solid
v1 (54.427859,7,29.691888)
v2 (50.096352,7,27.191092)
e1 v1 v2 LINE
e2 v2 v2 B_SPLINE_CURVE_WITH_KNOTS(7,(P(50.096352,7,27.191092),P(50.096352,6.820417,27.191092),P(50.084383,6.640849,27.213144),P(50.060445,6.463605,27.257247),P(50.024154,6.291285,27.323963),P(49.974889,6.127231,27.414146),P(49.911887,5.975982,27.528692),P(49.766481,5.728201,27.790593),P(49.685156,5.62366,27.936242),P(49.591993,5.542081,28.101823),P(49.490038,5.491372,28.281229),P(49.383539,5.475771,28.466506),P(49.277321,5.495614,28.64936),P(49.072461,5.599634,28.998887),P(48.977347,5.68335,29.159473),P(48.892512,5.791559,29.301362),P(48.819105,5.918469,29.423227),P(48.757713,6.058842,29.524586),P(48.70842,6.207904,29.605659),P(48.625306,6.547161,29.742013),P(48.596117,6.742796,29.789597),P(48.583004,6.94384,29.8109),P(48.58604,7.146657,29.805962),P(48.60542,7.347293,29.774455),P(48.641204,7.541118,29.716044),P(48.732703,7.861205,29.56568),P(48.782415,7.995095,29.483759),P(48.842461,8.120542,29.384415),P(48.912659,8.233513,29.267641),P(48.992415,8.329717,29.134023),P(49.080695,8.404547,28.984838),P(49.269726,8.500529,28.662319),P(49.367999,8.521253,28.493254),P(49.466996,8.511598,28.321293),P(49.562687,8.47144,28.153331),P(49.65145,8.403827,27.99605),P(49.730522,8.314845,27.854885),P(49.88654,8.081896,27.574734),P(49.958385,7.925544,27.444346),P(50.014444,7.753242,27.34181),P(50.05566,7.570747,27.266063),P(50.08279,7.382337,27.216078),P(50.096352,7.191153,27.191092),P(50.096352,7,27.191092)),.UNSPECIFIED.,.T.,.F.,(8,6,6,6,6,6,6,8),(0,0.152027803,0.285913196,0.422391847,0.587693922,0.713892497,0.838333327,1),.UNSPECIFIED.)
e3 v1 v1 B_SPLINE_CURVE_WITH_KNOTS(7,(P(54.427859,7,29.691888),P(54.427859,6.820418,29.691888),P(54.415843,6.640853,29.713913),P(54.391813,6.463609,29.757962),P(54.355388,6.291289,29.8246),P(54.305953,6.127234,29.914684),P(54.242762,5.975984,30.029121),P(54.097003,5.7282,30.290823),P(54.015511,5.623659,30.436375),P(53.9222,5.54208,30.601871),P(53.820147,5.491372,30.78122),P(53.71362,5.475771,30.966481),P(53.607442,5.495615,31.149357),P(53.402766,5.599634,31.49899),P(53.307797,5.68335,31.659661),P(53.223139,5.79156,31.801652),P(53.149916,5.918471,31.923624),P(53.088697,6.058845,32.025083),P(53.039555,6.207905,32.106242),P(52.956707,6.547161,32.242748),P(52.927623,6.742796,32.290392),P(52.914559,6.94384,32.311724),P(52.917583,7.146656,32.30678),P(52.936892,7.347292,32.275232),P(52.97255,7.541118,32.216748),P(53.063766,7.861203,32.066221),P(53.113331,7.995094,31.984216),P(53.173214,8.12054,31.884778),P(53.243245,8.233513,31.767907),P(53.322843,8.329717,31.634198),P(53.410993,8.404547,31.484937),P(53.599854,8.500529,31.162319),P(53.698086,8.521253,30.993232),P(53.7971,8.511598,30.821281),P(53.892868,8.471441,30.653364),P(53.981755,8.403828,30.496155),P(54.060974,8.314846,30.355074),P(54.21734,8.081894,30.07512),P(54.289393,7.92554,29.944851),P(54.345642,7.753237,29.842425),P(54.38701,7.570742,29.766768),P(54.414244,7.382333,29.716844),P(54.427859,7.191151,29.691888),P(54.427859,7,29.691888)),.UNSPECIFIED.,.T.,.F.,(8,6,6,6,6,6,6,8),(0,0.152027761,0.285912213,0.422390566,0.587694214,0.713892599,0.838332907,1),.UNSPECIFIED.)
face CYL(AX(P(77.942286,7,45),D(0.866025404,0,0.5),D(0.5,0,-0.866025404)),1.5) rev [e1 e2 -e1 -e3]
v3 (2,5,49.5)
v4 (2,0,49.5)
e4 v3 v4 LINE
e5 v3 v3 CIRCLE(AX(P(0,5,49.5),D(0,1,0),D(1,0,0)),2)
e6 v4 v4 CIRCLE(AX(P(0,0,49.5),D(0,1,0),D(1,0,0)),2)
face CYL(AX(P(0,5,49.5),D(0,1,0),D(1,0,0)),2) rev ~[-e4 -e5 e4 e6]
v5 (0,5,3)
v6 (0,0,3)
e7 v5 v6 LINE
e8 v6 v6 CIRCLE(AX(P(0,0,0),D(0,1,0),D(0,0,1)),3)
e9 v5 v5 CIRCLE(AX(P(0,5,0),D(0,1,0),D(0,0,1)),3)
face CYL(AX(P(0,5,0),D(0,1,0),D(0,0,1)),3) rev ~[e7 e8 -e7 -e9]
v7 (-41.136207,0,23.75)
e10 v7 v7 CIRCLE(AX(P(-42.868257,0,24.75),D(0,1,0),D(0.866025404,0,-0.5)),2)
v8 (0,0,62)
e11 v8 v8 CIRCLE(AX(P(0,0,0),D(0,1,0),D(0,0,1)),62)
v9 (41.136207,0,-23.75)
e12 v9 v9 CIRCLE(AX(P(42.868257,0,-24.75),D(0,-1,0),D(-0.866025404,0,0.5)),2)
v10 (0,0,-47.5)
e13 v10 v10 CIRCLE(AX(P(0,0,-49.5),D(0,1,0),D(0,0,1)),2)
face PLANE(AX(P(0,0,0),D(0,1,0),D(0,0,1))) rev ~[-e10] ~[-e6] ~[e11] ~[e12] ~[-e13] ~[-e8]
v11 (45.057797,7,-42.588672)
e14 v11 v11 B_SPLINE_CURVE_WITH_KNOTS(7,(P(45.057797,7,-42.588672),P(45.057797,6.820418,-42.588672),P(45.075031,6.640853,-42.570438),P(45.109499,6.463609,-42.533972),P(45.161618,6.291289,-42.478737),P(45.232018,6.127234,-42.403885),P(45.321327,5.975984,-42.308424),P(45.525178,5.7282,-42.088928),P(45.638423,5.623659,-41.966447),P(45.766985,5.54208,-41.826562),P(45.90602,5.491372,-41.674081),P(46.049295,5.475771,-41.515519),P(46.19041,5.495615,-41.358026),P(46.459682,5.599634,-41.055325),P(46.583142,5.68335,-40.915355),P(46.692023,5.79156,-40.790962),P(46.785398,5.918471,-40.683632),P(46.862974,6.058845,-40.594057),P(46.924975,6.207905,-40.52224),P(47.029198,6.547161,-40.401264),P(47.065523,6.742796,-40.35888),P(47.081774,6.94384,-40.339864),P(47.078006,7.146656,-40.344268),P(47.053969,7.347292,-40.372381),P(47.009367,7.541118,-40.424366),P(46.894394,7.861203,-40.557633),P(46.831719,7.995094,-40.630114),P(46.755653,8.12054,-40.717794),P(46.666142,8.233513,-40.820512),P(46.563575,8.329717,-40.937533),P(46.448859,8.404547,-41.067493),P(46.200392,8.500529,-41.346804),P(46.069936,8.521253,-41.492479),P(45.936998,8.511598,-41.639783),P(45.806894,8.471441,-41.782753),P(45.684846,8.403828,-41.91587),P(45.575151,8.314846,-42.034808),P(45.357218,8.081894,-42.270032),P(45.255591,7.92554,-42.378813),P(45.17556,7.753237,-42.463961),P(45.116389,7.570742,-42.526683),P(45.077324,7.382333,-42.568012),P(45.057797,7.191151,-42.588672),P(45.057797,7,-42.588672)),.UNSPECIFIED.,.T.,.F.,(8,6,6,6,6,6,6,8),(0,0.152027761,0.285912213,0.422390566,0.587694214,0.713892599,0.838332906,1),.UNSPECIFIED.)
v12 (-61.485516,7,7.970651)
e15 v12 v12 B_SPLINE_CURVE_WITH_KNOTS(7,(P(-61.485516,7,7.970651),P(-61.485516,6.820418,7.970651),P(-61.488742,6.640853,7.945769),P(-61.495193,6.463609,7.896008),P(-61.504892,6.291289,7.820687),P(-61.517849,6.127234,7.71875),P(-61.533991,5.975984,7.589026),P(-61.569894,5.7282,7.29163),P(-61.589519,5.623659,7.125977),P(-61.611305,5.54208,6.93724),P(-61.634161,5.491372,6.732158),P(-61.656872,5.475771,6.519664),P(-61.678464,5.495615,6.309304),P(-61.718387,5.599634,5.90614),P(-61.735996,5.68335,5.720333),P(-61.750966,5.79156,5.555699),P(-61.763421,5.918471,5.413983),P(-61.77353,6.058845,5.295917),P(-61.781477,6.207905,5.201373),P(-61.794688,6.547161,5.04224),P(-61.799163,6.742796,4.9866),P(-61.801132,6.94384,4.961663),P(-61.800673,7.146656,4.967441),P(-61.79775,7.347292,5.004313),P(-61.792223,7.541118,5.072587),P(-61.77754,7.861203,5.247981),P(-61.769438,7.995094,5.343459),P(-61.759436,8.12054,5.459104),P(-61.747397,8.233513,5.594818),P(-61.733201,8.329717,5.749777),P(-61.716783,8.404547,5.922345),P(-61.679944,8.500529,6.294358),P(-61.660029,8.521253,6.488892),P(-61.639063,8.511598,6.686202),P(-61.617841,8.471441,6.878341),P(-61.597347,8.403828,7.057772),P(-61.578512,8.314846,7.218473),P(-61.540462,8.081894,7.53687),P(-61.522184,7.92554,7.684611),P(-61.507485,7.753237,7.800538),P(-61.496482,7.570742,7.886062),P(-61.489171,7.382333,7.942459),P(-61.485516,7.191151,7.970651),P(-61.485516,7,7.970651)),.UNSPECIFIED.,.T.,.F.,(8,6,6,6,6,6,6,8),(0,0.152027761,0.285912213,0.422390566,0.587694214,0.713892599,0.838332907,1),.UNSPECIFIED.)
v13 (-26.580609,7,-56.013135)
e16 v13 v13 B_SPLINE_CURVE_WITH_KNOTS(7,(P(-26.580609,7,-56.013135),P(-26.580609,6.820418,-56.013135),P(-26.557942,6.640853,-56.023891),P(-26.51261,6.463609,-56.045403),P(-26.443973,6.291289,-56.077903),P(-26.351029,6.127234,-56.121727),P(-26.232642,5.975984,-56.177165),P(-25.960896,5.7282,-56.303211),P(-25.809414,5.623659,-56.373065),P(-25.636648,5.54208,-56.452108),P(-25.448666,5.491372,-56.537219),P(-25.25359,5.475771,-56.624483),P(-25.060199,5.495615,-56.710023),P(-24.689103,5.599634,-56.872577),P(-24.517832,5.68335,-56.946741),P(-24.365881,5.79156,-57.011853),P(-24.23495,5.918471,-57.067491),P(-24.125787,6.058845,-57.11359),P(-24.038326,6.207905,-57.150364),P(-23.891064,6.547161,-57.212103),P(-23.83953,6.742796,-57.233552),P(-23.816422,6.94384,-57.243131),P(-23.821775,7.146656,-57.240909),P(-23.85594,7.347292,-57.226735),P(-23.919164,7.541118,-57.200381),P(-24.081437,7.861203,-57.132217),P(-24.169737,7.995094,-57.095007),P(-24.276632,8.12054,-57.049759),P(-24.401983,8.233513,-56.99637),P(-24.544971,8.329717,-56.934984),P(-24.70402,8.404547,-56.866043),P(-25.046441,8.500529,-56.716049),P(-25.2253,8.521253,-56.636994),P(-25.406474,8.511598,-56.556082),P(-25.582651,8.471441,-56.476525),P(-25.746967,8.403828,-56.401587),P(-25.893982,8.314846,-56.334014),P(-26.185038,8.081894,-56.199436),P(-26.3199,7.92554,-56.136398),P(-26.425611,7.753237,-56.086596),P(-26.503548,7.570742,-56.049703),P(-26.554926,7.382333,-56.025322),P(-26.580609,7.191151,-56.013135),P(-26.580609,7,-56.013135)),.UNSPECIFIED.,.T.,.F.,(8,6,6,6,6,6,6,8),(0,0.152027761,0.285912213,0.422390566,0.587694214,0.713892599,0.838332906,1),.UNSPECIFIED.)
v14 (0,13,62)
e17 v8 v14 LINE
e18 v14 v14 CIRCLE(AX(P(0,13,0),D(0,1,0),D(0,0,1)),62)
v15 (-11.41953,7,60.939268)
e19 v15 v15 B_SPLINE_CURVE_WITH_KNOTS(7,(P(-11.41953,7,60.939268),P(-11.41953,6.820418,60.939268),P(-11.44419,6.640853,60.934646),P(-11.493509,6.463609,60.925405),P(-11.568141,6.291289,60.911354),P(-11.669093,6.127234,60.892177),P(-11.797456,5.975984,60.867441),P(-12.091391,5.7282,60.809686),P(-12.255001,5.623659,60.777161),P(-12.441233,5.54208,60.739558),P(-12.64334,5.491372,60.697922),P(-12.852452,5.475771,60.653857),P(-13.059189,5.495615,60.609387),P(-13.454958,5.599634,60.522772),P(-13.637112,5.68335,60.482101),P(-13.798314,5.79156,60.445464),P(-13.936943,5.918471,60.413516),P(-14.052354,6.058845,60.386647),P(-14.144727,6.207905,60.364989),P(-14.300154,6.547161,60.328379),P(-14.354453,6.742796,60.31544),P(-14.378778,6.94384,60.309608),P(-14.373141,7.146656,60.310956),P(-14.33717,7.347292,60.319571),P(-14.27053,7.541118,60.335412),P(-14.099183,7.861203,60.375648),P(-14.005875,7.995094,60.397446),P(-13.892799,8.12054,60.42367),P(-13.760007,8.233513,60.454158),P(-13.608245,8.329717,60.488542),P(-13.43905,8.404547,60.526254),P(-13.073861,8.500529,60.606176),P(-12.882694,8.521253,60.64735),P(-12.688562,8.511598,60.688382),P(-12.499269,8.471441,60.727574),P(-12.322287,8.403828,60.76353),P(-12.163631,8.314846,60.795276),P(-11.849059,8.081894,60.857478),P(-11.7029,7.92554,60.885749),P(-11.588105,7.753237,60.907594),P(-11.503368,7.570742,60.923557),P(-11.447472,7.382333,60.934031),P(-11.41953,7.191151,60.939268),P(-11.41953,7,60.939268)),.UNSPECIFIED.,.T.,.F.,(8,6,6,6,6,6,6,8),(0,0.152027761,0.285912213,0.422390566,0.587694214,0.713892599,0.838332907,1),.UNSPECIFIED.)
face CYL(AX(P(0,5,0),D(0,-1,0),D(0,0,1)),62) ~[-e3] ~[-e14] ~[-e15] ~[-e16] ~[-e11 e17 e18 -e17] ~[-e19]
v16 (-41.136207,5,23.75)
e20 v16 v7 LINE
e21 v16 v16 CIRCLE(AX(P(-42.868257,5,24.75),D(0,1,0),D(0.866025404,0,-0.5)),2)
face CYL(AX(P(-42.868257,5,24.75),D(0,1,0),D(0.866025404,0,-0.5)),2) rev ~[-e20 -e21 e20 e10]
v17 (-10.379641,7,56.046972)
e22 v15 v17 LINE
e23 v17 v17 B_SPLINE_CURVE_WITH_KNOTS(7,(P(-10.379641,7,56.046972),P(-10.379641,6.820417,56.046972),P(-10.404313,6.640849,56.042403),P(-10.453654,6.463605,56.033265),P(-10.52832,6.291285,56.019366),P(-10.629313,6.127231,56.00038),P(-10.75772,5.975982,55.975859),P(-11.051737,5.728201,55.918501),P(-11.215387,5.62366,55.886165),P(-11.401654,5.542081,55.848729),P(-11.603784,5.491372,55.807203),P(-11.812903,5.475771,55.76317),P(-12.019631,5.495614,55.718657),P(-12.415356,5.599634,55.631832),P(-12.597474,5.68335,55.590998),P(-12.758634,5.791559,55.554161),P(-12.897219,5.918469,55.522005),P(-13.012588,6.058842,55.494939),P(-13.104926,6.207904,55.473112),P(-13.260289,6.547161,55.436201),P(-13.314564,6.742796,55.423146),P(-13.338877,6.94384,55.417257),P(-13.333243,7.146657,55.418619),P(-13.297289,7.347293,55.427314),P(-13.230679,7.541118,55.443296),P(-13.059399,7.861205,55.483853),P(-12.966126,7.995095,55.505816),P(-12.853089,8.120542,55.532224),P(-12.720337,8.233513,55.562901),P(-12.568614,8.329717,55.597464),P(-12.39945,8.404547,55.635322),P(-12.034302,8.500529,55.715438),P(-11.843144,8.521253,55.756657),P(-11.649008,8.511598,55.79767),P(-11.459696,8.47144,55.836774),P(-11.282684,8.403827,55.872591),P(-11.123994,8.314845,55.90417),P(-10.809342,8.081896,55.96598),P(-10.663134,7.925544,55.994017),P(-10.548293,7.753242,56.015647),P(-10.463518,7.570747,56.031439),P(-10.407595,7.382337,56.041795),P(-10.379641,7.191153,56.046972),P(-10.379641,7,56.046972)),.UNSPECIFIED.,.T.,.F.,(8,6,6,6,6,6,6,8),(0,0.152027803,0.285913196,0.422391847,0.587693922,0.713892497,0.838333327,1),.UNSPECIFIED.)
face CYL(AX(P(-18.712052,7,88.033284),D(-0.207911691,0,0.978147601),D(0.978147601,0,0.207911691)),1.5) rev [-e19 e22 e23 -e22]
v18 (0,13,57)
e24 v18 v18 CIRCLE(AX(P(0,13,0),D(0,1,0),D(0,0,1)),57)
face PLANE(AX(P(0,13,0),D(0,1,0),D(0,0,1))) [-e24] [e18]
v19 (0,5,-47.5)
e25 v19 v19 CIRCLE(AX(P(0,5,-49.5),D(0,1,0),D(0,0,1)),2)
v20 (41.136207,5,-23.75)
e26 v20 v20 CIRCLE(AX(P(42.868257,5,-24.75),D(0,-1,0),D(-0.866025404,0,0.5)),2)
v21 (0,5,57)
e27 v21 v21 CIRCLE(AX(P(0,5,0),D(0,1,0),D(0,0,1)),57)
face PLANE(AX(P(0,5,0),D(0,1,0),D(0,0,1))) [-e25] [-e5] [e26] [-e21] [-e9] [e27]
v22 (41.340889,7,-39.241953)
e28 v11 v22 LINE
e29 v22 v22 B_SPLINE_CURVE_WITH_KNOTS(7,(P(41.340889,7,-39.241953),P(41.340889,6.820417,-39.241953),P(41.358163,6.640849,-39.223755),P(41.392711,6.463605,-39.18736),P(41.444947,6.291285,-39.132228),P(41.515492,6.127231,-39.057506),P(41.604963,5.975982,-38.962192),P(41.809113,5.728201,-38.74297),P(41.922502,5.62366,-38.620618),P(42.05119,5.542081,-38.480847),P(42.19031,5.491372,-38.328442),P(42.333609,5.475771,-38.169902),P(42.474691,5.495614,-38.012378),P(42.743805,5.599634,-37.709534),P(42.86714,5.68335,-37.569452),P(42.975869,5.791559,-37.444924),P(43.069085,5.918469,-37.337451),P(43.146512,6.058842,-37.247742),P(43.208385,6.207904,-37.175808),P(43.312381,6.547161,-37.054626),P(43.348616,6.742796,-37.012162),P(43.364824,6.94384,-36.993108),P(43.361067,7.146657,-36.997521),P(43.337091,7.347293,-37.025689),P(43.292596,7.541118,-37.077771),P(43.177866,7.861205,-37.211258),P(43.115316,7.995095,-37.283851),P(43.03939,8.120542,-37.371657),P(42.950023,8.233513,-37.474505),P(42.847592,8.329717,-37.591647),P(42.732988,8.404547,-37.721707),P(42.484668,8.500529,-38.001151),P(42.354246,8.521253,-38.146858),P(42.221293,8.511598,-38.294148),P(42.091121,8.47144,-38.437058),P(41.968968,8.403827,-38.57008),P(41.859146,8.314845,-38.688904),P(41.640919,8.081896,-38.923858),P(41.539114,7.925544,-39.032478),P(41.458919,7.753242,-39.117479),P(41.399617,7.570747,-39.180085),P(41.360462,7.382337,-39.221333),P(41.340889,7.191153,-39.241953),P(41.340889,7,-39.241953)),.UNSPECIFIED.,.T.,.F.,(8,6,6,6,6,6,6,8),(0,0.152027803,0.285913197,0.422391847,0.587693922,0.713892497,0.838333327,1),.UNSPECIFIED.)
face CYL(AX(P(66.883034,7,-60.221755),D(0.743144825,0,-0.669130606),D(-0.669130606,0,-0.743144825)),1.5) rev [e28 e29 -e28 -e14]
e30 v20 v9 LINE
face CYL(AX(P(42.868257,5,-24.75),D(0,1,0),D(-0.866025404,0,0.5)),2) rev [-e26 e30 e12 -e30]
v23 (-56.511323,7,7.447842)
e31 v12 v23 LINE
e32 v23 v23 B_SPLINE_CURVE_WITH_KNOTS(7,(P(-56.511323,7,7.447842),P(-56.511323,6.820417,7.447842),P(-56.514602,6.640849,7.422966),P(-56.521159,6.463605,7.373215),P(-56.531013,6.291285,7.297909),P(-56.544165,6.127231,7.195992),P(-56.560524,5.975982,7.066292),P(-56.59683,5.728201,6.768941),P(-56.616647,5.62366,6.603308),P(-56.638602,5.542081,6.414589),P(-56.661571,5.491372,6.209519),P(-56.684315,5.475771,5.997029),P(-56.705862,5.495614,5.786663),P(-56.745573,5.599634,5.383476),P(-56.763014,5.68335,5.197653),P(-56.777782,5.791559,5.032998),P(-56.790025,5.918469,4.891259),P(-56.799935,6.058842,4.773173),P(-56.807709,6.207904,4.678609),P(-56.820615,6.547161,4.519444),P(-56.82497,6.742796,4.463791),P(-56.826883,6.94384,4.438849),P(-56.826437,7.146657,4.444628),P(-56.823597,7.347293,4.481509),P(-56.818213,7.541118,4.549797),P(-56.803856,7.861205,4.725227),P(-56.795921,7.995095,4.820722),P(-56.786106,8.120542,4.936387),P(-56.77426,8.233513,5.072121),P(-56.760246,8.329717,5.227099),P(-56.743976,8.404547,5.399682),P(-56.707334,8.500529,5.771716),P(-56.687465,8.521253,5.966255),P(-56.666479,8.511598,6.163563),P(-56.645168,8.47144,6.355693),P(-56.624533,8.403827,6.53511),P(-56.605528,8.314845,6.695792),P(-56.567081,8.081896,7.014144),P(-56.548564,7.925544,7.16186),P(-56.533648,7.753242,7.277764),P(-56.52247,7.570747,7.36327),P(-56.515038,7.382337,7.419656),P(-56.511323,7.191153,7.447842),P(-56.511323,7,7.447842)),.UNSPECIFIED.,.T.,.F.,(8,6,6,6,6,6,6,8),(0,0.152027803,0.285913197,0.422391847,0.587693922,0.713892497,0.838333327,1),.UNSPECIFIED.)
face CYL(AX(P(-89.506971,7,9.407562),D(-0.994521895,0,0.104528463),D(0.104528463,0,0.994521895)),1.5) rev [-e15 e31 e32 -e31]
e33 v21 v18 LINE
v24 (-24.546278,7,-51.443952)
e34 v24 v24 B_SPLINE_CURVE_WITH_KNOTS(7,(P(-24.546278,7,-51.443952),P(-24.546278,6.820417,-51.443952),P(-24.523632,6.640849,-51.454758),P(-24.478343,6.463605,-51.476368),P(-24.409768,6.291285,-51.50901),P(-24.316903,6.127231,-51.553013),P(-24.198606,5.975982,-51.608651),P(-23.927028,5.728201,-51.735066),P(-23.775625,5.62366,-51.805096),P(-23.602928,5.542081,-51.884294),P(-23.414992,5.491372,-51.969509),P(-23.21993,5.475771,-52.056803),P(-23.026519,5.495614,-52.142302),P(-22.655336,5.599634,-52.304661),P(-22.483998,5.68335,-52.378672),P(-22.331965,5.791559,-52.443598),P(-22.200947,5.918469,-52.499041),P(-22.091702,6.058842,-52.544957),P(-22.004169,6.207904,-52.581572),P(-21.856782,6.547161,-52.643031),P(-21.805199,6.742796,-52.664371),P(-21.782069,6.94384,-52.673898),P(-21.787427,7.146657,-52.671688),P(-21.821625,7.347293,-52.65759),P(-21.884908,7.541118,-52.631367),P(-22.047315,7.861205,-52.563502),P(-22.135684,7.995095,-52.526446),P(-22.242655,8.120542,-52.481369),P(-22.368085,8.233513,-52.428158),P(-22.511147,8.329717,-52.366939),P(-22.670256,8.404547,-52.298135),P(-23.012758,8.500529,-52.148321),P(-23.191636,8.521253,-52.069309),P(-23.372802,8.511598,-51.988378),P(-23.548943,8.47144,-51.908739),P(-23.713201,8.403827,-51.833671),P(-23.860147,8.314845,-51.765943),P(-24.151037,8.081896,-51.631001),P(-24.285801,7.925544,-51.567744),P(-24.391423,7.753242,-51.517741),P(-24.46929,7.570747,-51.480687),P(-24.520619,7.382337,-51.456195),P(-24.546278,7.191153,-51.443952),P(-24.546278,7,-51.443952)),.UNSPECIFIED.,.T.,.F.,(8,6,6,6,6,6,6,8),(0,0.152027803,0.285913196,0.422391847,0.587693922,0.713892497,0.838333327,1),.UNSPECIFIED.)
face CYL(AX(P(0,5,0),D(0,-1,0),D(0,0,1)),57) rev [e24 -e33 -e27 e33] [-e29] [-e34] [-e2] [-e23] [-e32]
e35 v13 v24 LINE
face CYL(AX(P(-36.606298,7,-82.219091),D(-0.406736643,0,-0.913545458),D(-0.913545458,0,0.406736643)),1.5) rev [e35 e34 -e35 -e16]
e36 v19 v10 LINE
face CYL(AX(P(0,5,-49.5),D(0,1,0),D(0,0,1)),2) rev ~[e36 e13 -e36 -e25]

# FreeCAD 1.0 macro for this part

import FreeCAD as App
import Part
import Sketcher
from FreeCAD import Vector

doc = App.newDocument("Part")
body = doc.addObject("PartDesign::Body", "Body")

# Sketch on XZ plane
sketch1 = doc.addObject("Sketcher::SketchObject", "Sketch")
body.addObject(sketch1)
sketch1.AttachmentSupport = (doc.XZ_Plane, [""])
sketch1.MapMode = "FlatFace"
sketch1.addGeometry(Part.Circle(Vector(0, 0, 0), Vector(0, 0, 1), 62), False)
sketch1.addConstraint(Sketcher.Constraint("Coincident", 0, 3, -1, 1))
sketch1.addConstraint(Sketcher.Constraint("Diameter", 0, 124.0))
pad1 = doc.addObject("PartDesign::Pad", "Pad")
body.addObject(pad1)
pad1.Profile = sketch1
pad1.Length = 5
pad1.Reversed = True

# Sketch on XZ plane
sketch2 = doc.addObject("Sketcher::SketchObject", "Sketch001")
body.addObject(sketch2)
sketch2.AttachmentSupport = (doc.XZ_Plane, [""])
sketch2.MapMode = "FlatFace"
sketch2.AttachmentOffset = App.Placement(Vector(0, 0, -5), App.Rotation())
sketch2.addGeometry(Part.Circle(Vector(0, -49.5, 0), Vector(0, 0, 1), 2), False)
sketch2.addConstraint(Sketcher.Constraint("PointOnObject", 0, 3, -2))
sketch2.addConstraint(Sketcher.Constraint("Diameter", 0, 4.0))
sketch2.addConstraint(Sketcher.Constraint("DistanceY", 0, 3, -1, 1, 49.5))
pocket1 = doc.addObject("PartDesign::Pocket", "Pocket")
body.addObject(pocket1)
pocket1.Profile = sketch2
pocket1.Length = 5
pocket1.Reversed = True
doc.recompute()

polarpattern = doc.addObject("PartDesign::PolarPattern", "PolarPattern")
body.addObject(polarpattern)
polarpattern.Originals = [pocket1]
polarpattern.Axis = (doc.Y_Axis, [""])
polarpattern.Angle = 120
polarpattern.Occurrences = 2
body.Tip = polarpattern
doc.recompute()

datumplane = doc.addObject("PartDesign::Plane", "DatumPlane")
body.addObject(datumplane)
datumplane.Placement = App.Placement(Vector(0, 0, 0), App.Rotation(Vector(0.5, 0, -0.866025404), Vector(0, -1, 0), Vector(-0.866025404, 0, -0.5), "ZXY"))
mirrored = doc.addObject("PartDesign::Mirrored", "Mirrored")
body.addObject(mirrored)
mirrored.Originals = [pocket1]
mirrored.MirrorPlane = (datumplane, [""])
body.Tip = mirrored

# Sketch on XZ plane
sketch3 = doc.addObject("Sketcher::SketchObject", "Sketch002")
body.addObject(sketch3)
sketch3.AttachmentSupport = (doc.XZ_Plane, [""])
sketch3.MapMode = "FlatFace"
sketch3.AttachmentOffset = App.Placement(Vector(0, 0, -5), App.Rotation())
sketch3.addGeometry(Part.Circle(Vector(0, 49.5, 0), Vector(0, 0, 1), 2), False)
sketch3.addConstraint(Sketcher.Constraint("PointOnObject", 0, 3, -2))
sketch3.addConstraint(Sketcher.Constraint("Diameter", 0, 4.0))
sketch3.addConstraint(Sketcher.Constraint("DistanceY", -1, 1, 0, 3, 49.5))
pocket2 = doc.addObject("PartDesign::Pocket", "Pocket001")
body.addObject(pocket2)
pocket2.Profile = sketch3
pocket2.Length = 5
pocket2.Reversed = True

# Sketch on XZ plane
sketch4 = doc.addObject("Sketcher::SketchObject", "Sketch003")
body.addObject(sketch4)
sketch4.AttachmentSupport = (doc.XZ_Plane, [""])
sketch4.MapMode = "FlatFace"
sketch4.AttachmentOffset = App.Placement(Vector(0, 0, -5), App.Rotation())
sketch4.addGeometry(Part.Circle(Vector(0, 0, 0), Vector(0, 0, 1), 62), False)
sketch4.addGeometry(Part.Circle(Vector(0, 0, 0), Vector(0, 0, 1), 57), False)
sketch4.addConstraint(Sketcher.Constraint("Coincident", 0, 3, -1, 1))
sketch4.addConstraint(Sketcher.Constraint("Coincident", 1, 3, -1, 1))
sketch4.addConstraint(Sketcher.Constraint("Diameter", 0, 124.0))
sketch4.addConstraint(Sketcher.Constraint("Diameter", 1, 114.0))
pad2 = doc.addObject("PartDesign::Pad", "Pad001")
body.addObject(pad2)
pad2.Profile = sketch4
pad2.Length = 8
pad2.Reversed = True

# Sketch on an angled plane
sketch5 = doc.addObject("Sketcher::SketchObject", "Sketch004")
body.addObject(sketch5)
sketch5.Placement = App.Placement(Vector(77.942286, 0, 45), App.Rotation(Vector(-0.5, 0, 0.866025404), Vector(0, 1, 0), Vector(-0.866025404, 0, -0.5), "ZXY"))
sketch5.addGeometry(Part.Circle(Vector(0, 7, 0), Vector(0, 0, 1), 1.5), False)
sketch5.addConstraint(Sketcher.Constraint("PointOnObject", 0, 3, -2))
sketch5.addConstraint(Sketcher.Constraint("Diameter", 0, 3.0))
sketch5.addConstraint(Sketcher.Constraint("DistanceY", -1, 1, 0, 3, 7.0))
pocket3 = doc.addObject("PartDesign::Pocket", "Pocket002")
body.addObject(pocket3)
pocket3.Profile = sketch5
pocket3.Length = 91
pocket3.Reversed = True
doc.recompute()

polarpattern2 = doc.addObject("PartDesign::PolarPattern", "PolarPattern001")
body.addObject(polarpattern2)
polarpattern2.Originals = [pocket3]
polarpattern2.Axis = (doc.Y_Axis, [""])
polarpattern2.Angle = 360
polarpattern2.Occurrences = 5
body.Tip = polarpattern2

# Sketch on XZ plane
sketch6 = doc.addObject("Sketcher::SketchObject", "Sketch005")
body.addObject(sketch6)
sketch6.AttachmentSupport = (doc.XZ_Plane, [""])
sketch6.MapMode = "FlatFace"
sketch6.AttachmentOffset = App.Placement(Vector(0, 0, -5), App.Rotation())
sketch6.addGeometry(Part.Circle(Vector(0, 0, 0), Vector(0, 0, 1), 3), False)
sketch6.addConstraint(Sketcher.Constraint("Coincident", 0, 3, -1, 1))
sketch6.addConstraint(Sketcher.Constraint("Diameter", 0, 6.0))
pocket4 = doc.addObject("PartDesign::Pocket", "Pocket003")
body.addObject(pocket4)
pocket4.Profile = sketch6
pocket4.Length = 10
pocket4.Reversed = True

doc.recompute()
